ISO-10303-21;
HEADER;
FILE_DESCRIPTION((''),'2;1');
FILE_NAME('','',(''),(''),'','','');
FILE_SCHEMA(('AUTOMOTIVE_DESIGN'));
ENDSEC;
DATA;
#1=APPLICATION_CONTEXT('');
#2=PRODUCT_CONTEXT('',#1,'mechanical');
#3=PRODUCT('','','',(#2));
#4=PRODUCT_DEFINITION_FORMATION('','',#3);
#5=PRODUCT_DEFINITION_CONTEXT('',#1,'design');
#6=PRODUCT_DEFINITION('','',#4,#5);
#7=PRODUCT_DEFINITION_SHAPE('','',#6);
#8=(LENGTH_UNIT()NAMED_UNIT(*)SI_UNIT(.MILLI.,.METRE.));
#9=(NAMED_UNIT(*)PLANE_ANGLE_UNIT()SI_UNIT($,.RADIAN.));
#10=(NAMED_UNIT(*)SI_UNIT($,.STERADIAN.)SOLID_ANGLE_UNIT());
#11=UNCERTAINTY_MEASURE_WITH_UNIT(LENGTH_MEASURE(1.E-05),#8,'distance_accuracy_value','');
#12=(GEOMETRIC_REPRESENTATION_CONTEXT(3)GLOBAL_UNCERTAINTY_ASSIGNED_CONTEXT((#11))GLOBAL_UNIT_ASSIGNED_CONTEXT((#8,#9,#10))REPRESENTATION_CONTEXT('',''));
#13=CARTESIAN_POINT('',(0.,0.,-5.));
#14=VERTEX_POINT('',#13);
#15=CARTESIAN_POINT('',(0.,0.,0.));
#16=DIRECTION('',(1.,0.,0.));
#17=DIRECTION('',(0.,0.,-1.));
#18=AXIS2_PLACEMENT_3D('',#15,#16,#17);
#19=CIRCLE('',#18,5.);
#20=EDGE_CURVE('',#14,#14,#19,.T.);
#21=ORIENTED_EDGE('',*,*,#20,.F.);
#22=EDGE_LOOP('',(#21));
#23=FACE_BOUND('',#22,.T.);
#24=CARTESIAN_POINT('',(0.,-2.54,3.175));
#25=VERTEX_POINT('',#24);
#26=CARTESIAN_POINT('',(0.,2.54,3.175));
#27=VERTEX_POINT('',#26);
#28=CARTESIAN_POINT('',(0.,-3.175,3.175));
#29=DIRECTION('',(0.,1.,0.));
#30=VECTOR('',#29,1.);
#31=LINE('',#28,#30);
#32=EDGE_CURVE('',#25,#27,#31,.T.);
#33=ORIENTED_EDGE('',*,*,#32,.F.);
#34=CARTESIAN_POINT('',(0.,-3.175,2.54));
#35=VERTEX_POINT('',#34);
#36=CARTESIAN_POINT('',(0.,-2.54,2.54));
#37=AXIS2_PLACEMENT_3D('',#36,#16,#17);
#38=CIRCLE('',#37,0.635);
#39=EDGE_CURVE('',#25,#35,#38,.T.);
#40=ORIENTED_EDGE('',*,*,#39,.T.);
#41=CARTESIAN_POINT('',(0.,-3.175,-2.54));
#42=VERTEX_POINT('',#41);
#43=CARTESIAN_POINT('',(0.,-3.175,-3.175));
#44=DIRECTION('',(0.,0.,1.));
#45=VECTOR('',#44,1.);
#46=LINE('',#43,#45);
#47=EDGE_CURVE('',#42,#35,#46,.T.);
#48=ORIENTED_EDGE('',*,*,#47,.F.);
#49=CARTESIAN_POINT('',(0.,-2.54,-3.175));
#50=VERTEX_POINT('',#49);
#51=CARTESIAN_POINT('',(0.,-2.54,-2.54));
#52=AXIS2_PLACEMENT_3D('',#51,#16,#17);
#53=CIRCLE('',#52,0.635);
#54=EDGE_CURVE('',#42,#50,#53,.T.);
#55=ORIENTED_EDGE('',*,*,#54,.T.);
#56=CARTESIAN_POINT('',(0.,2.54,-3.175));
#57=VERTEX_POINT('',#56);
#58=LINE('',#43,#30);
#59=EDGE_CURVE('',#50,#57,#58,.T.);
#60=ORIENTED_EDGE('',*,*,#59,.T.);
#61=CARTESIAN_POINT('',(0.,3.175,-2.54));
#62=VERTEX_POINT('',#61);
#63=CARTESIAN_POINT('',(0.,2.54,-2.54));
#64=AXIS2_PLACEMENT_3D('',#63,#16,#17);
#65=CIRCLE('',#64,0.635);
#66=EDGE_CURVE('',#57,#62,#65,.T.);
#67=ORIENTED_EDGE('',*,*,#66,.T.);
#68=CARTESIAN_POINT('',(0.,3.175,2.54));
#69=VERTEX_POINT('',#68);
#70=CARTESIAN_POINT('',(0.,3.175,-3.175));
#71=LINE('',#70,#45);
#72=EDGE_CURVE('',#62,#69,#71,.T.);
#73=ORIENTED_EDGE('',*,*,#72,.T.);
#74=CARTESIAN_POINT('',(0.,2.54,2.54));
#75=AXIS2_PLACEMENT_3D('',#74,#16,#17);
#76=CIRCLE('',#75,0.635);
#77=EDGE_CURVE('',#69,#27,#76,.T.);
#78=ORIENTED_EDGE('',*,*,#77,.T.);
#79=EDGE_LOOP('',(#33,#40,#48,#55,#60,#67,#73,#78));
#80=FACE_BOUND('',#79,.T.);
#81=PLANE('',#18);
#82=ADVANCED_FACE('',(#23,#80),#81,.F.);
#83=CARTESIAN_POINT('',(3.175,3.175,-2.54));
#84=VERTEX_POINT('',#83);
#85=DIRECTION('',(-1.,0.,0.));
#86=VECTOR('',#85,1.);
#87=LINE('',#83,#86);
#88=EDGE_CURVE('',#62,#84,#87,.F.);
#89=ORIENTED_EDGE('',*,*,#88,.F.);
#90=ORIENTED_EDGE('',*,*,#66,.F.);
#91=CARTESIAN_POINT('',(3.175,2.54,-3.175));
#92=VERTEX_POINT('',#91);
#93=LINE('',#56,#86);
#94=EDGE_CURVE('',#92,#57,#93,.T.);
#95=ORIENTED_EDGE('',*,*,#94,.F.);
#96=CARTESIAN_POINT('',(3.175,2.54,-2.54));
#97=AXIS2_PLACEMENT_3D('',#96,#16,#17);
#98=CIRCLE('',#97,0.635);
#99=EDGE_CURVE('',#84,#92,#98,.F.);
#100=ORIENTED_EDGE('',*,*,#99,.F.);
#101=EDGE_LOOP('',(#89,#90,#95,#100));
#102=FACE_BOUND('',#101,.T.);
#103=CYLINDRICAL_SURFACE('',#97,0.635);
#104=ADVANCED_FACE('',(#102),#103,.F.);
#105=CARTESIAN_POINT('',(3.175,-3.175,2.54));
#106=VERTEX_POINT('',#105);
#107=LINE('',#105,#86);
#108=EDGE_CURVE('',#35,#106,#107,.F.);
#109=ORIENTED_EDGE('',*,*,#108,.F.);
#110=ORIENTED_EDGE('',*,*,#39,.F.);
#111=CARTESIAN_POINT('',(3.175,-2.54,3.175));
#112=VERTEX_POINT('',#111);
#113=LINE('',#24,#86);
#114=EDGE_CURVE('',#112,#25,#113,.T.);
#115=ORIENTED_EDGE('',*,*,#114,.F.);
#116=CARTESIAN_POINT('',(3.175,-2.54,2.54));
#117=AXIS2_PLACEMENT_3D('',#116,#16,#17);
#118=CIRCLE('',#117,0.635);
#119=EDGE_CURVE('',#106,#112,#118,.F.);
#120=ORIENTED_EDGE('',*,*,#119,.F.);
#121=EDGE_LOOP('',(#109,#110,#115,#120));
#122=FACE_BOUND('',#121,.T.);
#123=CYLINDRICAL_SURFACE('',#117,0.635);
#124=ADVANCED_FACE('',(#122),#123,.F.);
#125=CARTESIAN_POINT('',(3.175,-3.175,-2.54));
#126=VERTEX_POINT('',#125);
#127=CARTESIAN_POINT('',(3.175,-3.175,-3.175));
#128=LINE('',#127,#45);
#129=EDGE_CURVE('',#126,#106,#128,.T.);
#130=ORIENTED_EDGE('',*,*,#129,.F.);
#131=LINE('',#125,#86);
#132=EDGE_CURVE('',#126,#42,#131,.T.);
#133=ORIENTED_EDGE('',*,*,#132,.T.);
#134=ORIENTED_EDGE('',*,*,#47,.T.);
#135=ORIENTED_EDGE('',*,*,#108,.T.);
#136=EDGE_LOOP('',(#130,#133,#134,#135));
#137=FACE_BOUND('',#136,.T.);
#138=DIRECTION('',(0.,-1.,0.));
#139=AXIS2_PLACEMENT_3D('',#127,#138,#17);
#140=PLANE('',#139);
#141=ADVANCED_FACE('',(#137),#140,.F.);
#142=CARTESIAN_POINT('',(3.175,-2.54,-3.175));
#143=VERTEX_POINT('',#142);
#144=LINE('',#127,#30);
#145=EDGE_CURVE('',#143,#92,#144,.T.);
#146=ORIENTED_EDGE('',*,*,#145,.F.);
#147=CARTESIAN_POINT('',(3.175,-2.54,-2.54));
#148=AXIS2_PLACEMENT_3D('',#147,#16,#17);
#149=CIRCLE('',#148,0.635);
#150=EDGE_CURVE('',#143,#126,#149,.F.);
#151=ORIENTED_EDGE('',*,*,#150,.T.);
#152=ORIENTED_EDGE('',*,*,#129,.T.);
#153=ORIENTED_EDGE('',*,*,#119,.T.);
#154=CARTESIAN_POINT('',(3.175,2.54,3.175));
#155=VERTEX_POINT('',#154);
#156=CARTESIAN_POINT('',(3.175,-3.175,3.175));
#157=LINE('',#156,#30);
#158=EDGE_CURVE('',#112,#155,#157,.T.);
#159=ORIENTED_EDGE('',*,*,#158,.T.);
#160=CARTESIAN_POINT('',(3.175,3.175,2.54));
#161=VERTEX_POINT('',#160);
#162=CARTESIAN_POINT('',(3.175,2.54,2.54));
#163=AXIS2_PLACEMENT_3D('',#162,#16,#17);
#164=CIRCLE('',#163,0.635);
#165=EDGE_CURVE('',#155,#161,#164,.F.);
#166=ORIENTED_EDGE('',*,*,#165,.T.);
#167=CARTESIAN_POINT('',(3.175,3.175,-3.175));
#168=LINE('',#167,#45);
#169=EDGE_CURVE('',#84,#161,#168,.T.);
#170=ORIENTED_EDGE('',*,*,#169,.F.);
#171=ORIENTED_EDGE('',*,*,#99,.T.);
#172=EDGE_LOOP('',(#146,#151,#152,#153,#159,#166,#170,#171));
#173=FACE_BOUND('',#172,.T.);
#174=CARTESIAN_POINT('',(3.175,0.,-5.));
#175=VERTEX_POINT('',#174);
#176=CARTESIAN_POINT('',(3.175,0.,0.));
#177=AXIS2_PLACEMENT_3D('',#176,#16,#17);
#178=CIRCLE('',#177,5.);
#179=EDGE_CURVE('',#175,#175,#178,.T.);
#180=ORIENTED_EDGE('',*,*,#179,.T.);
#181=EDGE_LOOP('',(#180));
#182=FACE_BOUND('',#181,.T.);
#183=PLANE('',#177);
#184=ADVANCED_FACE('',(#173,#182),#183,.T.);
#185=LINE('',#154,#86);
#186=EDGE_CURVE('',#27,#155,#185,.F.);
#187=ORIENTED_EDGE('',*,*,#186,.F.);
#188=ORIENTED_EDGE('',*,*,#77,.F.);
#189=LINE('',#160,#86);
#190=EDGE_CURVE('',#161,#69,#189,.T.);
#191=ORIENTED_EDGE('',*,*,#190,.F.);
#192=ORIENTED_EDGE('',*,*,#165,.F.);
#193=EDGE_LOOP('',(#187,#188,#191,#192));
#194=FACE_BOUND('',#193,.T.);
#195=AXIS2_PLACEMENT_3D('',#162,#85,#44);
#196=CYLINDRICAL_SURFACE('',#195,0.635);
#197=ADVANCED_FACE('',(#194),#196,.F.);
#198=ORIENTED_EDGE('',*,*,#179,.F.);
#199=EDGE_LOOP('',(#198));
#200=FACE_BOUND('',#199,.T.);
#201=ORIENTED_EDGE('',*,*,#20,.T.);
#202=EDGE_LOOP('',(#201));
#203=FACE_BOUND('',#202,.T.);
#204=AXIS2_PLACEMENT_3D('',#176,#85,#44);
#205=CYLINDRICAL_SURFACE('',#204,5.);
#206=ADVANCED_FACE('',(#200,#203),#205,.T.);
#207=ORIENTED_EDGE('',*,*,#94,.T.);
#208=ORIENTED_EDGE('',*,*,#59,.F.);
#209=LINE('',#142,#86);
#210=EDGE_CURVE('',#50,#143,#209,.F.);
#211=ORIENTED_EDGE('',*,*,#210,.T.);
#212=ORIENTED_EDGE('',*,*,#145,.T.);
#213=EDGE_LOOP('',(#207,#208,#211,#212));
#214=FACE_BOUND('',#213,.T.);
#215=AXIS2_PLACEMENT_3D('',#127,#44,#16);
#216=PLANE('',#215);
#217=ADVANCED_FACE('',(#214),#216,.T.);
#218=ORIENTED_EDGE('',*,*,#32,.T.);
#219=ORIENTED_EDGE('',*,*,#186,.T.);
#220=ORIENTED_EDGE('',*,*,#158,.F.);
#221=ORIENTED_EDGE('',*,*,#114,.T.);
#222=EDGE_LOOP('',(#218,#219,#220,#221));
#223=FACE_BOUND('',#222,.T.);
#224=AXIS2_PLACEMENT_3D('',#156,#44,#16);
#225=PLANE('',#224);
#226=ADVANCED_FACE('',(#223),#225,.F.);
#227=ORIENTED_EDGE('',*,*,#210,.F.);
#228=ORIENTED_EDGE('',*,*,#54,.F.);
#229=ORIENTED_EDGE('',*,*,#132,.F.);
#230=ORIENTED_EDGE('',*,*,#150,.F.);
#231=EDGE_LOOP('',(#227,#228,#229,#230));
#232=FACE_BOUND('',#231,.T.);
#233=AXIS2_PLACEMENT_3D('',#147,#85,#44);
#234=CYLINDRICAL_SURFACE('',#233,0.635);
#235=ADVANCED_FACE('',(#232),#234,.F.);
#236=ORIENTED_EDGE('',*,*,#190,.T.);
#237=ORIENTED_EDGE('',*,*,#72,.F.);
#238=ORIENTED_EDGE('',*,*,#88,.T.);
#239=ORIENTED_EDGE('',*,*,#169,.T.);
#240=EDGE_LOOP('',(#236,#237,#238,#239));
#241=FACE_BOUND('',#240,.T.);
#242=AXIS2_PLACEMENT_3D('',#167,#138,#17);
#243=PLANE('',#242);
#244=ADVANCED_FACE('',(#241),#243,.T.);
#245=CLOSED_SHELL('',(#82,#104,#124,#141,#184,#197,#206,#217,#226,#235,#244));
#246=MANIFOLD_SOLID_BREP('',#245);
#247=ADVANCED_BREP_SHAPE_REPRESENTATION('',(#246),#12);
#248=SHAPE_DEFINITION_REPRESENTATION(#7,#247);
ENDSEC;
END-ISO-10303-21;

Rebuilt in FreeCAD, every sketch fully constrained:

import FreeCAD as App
import Part
import Sketcher
from FreeCAD import Vector
Q = App.Units.Quantity


def edges_at(feature, points):
    """Names of the edges that pass closest to the given points."""
    edges = feature.Shape.Edges
    near = lambda p: min(range(len(edges)), key=lambda i: edges[i].distToShape(Part.Vertex(*p))[0])
    return sorted({f"Edge{near(p) + 1}" for p in points})


def add_polygon(sketch, points):
    """Adds a closed chain of lines whose ends are joined by coincident constraints."""
    first, n = sketch.GeometryCount, len(points)
    for a, b in zip(points, points[1:] + points[:1]):
        sketch.addGeometry(Part.LineSegment(App.Vector(*a, 0), App.Vector(*b, 0)), False)
    for i in range(n):
        sketch.addConstraint(Sketcher.Constraint("Coincident", first + i, 2, first + (i + 1) % n, 1))

doc = App.newDocument("Part")
body = doc.addObject("PartDesign::Body", "Body")

sketch1 = doc.addObject("Sketcher::SketchObject", "Sketch")
body.addObject(sketch1)
sketch1.AttachmentSupport = (doc.YZ_Plane, [""])
sketch1.MapMode = "FlatFace"
sketch1.addGeometry(Part.Circle(Vector(0, 0, 0), Vector(0, 0, 1), 5), False)
add_polygon(sketch1, [(-3, -3), (-3, 3), (3, 3), (3, -3)])
sketch1.addConstraint([
    Sketcher.Constraint("Vertical", 1),
    Sketcher.Constraint("Horizontal", 2),
    Sketcher.Constraint("Vertical", 3),
    Sketcher.Constraint("Horizontal", 4),
    Sketcher.Constraint("Coincident", 0, 3, -1, 1),
    Sketcher.Constraint("Symmetric", 1, 2, 3, 2, -1, 1),
    Sketcher.Constraint("Equal", 4, 1),
    Sketcher.Constraint("DistanceX", 2, 1, 2, 2, Q("0.25 in")),
    Sketcher.Constraint("Diameter", 0, Q("10 mm")),
])
pad1 = doc.addObject("PartDesign::Pad", "Pad")
body.addObject(pad1)
pad1.Profile = sketch1
pad1.Length = Q("0.125 in")
doc.recompute()

fillet = doc.addObject("PartDesign::Fillet", "Fillet")
body.addObject(fillet)
fillet.Base = (pad1, edges_at(pad1, [
    (1.587, -3.175, 3.175),
    (1.587, -3.175, -3.175),
    (1.587, 3.175, -3.175),
    (1.587, 3.175, 3.175),
]))
fillet.Radius = Q("0.025 in")

doc.recompute()
